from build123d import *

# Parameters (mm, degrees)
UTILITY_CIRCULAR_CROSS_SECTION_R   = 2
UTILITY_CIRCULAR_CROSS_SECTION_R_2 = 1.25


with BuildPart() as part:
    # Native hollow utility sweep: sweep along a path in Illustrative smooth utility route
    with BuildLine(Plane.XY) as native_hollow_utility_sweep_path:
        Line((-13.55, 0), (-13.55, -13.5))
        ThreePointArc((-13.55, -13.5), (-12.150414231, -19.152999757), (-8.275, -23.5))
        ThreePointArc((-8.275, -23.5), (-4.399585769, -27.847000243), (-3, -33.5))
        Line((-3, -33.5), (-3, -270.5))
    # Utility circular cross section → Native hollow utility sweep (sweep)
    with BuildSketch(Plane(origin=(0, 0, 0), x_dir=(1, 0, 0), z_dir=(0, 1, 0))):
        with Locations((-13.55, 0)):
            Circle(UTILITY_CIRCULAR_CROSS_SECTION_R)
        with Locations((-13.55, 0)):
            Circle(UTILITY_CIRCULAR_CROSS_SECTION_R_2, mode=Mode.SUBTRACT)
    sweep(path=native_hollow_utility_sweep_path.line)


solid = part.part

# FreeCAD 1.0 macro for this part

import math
import FreeCAD as App
import Part
import Sketcher

doc = App.newDocument("Part")
params = doc.addObject("Spreadsheet::Sheet", "Params")
for row, (alias, value) in enumerate([
    ("sketch1_diameter", "4 mm"),
    ("sketch1_diameter2", "2.5 mm"),
    ("sketch2_height", "237 mm"),
    ("sketch2_height2", "13.5 mm"),
], start=1):
    params.set(f"A{row}", alias)
    params.set(f"B{row}", "=" + value)
    params.setAlias(f"B{row}", alias)

body = doc.addObject("PartDesign::Body", "Body")

# Sketch on XZ plane
sketch1 = body.newObject("Sketcher::SketchObject", "Sketch")
sketch1.AttachmentSupport = (doc.getObject("XZ_Plane"), [""])
sketch1.MapMode = "FlatFace"
sketch1.addGeometry([
    Part.Circle(App.Vector(-13.6, 0, 0), App.Vector(0, 0, 1), 2),
    Part.Circle(App.Vector(-13.6, 0, 0), App.Vector(0, 0, 1), 1.2),
], False)
sketch1.addConstraint([
    Sketcher.Constraint("Coincident", 1, 3, 0, 3),
    Sketcher.Constraint("PointOnObject", 0, 3, -1),
    Sketcher.Constraint("Diameter", 0, 4.0),
    Sketcher.Constraint("Diameter", 1, 2.5),
    Sketcher.Constraint("DistanceX", 0, 3, -1, 1, 13.55),
])
sketch1.setExpression("Constraints[2]", "Params.sketch1_diameter")
sketch1.setExpression("Constraints[3]", "Params.sketch1_diameter2")

# Sketch on XY plane
sketch2 = body.newObject("Sketcher::SketchObject", "Sketch001")
sketch2.AttachmentSupport = (doc.getObject("XY_Plane"), [""])
sketch2.MapMode = "FlatFace"
sketch2.addGeometry([
    Part.LineSegment(App.Vector(-14, 0, 0), App.Vector(-14, -14, 0)),
    Part.ArcOfCircle(Part.Circle(App.Vector(-1, -14, 0), App.Vector(0, 0, 1), 12), math.radians(180), math.radians(236)),
    Part.ArcOfCircle(Part.Circle(App.Vector(-15, -33, 0), App.Vector(0, 0, 1), 12), math.radians(0), math.radians(56)),
    Part.LineSegment(App.Vector(-3, -34, 0), App.Vector(-3, -270, 0)),
], False)
sketch2.addConstraint([
    Sketcher.Constraint("Tangent", 0, 2, 1, 1),
    Sketcher.Constraint("Tangent", 1, 2, 2, 2),
    Sketcher.Constraint("Tangent", 2, 1, 3, 1),
    Sketcher.Constraint("Vertical", 0),
    Sketcher.Constraint("Vertical", 3),
    Sketcher.Constraint("Equal", 1, 2),
    Sketcher.Constraint("PointOnObject", 0, 1, -1),
    Sketcher.Constraint("DistanceY", 3, 2, 3, 1, 237.0),
    Sketcher.Constraint("DistanceY", 0, 2, 0, 1, 13.5),
    Sketcher.Constraint("DistanceX", 2, 1, -1, 1, 3.0),
    Sketcher.Constraint("DistanceY", 2, 3, 1, 3, 20.0),
    Sketcher.Constraint("DistanceX", 0, 1, -1, 1, 13.55),
])
sketch2.setExpression("Constraints[7]", "Params.sketch2_height")
sketch2.setExpression("Constraints[8]", "Params.sketch2_height2")
doc.recompute()

additivepipe = body.newObject("PartDesign::AdditivePipe", "AdditivePipe")
additivepipe.Profile = sketch1
additivepipe.Spine = (sketch2, ["Edge1", "Edge2", "Edge3", "Edge4"])

doc.recompute()
